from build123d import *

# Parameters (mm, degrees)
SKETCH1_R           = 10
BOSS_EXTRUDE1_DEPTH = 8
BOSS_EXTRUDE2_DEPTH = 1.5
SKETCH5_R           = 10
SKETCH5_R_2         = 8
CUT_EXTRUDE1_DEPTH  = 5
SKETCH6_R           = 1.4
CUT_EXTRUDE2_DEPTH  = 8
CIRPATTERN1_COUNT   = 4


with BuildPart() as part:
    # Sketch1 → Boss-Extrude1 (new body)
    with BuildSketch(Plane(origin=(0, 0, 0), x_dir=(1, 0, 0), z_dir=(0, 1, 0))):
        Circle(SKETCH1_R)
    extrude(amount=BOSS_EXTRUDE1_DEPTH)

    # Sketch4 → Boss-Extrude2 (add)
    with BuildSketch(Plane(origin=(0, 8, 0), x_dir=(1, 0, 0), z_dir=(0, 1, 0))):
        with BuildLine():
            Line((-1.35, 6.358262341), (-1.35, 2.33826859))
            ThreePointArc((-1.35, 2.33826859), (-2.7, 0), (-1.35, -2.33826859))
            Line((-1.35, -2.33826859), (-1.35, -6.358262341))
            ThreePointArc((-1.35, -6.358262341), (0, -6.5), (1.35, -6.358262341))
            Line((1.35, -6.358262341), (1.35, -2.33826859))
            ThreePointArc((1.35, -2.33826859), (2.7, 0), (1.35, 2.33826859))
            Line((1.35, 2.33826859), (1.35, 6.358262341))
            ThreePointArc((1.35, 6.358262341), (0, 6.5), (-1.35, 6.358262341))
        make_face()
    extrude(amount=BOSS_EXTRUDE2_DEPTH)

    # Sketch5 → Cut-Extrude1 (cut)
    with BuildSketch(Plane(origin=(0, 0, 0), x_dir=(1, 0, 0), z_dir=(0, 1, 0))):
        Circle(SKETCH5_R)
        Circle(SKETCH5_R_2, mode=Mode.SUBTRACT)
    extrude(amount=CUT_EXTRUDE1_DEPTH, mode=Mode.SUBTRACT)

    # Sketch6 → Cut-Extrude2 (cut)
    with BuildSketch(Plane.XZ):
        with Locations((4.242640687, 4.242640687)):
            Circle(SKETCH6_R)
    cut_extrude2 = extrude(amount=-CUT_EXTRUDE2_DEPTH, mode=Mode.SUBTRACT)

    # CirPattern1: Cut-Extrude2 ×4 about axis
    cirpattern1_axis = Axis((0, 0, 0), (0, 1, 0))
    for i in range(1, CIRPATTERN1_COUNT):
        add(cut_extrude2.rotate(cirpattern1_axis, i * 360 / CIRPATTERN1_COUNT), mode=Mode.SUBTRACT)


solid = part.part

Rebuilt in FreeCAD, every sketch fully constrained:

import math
import FreeCAD as App
import Part
import Sketcher

V = App.Vector

doc = App.newDocument("Part")
body = doc.addObject("PartDesign::Body", "Body")

# Sketch on XZ plane
sketch1 = body.newObject("Sketcher::SketchObject", "Sketch")
sketch1.AttachmentSupport = (doc.getObject("XZ_Plane"), [""])
sketch1.MapMode = "FlatFace"
sketch1.addGeometry(Part.Circle(V(0, 0, 0), V(0, 0, 1), 10), False)
sketch1.addConstraint(Sketcher.Constraint("Coincident", 0, 3, -1, 1))
sketch1.addConstraint(Sketcher.Constraint("Diameter", 0, 20.0))
pad1 = body.newObject("PartDesign::Pad", "Pad")
pad1.Profile = sketch1
pad1.Length = 8
pad1.Reversed = True

# Sketch on XZ plane
sketch2 = body.newObject("Sketcher::SketchObject", "Sketch001")
sketch2.AttachmentSupport = (doc.getObject("XZ_Plane"), [""])
sketch2.MapMode = "FlatFace"
sketch2.AttachmentOffset = App.Placement(V(0, 0, -8), App.Rotation())
sketch2.addGeometry(Part.LineSegment(V(-1.35, -6.358262, 0), V(-1.35, -2.338269, 0)), False)
sketch2.addGeometry(Part.ArcOfCircle(Part.Circle(V(0, 0, 0), V(0, 0, 1), 2.7), math.radians(120), math.radians(240)), False)
sketch2.addGeometry(Part.LineSegment(V(-1.35, 2.338269, 0), V(-1.35, 6.358262, 0)), False)
sketch2.addGeometry(Part.ArcOfCircle(Part.Circle(V(0, 0, 0), V(0, 0, 1), 6.5), math.radians(78.01285), math.radians(101.98715)), False)
sketch2.addGeometry(Part.LineSegment(V(1.35, 6.358262, 0), V(1.35, 2.338269, 0)), False)
sketch2.addGeometry(Part.ArcOfCircle(Part.Circle(V(0, 0, 0), V(0, 0, 1), 2.7), math.radians(-60), math.radians(60)), False)
sketch2.addGeometry(Part.LineSegment(V(1.35, -2.338269, 0), V(1.35, -6.358262, 0)), False)
sketch2.addGeometry(Part.ArcOfCircle(Part.Circle(V(0, 0, 0), V(0, 0, 1), 6.5), math.radians(-101.98715), math.radians(-78.01285)), False)
sketch2.addConstraint(Sketcher.Constraint("Coincident", 0, 2, 1, 2))
sketch2.addConstraint(Sketcher.Constraint("Coincident", 1, 1, 2, 1))
sketch2.addConstraint(Sketcher.Constraint("Coincident", 2, 2, 3, 2))
sketch2.addConstraint(Sketcher.Constraint("Coincident", 3, 1, 4, 1))
sketch2.addConstraint(Sketcher.Constraint("Coincident", 4, 2, 5, 2))
sketch2.addConstraint(Sketcher.Constraint("Coincident", 5, 1, 6, 1))
sketch2.addConstraint(Sketcher.Constraint("Coincident", 6, 2, 7, 2))
sketch2.addConstraint(Sketcher.Constraint("Coincident", 7, 1, 0, 1))
sketch2.addConstraint(Sketcher.Constraint("Vertical", 0))
sketch2.addConstraint(Sketcher.Constraint("Vertical", 2))
sketch2.addConstraint(Sketcher.Constraint("Vertical", 4))
sketch2.addConstraint(Sketcher.Constraint("Vertical", 6))
sketch2.addConstraint(Sketcher.Constraint("Coincident", 1, 3, -1, 1))
sketch2.addConstraint(Sketcher.Constraint("Coincident", 3, 3, -1, 1))
sketch2.addConstraint(Sketcher.Constraint("Coincident", 5, 3, -1, 1))
sketch2.addConstraint(Sketcher.Constraint("Coincident", 7, 3, -1, 1))
sketch2.addConstraint(Sketcher.Constraint("Equal", 1, 5))
sketch2.addConstraint(Sketcher.Constraint("Equal", 3, 7))
sketch2.addConstraint(Sketcher.Constraint("Horizontal", 2, 2, 3, 1))
sketch2.addConstraint(Sketcher.Constraint("Horizontal", 0, 2, 5, 1))
sketch2.addConstraint(Sketcher.Constraint("Vertical", 0, 2, 1, 1))
sketch2.addConstraint(Sketcher.Constraint("Radius", 1, 2.7))
sketch2.addConstraint(Sketcher.Constraint("Radius", 3, 6.5))
sketch2.addConstraint(Sketcher.Constraint("DistanceX", 2, 2, 3, 1, 2.7))
pad2 = body.newObject("PartDesign::Pad", "Pad001")
pad2.Profile = sketch2
pad2.Length = 1.5
pad2.Reversed = True

# Sketch on XZ plane
sketch3 = body.newObject("Sketcher::SketchObject", "Sketch002")
sketch3.AttachmentSupport = (doc.getObject("XZ_Plane"), [""])
sketch3.MapMode = "FlatFace"
sketch3.addGeometry(Part.Circle(V(0, 0, 0), V(0, 0, 1), 10), False)
sketch3.addGeometry(Part.Circle(V(0, 0, 0), V(0, 0, 1), 8), False)
sketch3.addConstraint(Sketcher.Constraint("Coincident", 0, 3, -1, 1))
sketch3.addConstraint(Sketcher.Constraint("Coincident", 1, 3, -1, 1))
sketch3.addConstraint(Sketcher.Constraint("Diameter", 0, 20.0))
sketch3.addConstraint(Sketcher.Constraint("Diameter", 1, 16.0))
pocket1 = body.newObject("PartDesign::Pocket", "Pocket")
pocket1.Profile = sketch3
pocket1.Length = 5

# Sketch on XZ plane
sketch4 = body.newObject("Sketcher::SketchObject", "Sketch003")
sketch4.AttachmentSupport = (doc.getObject("XZ_Plane"), [""])
sketch4.MapMode = "FlatFace"
sketch4.addGeometry(Part.Circle(V(4.242641, 4.242641, 0), V(0, 0, 1), 1.4), False)
sketch4.addConstraint(Sketcher.Constraint("Diameter", 0, 2.8))
sketch4.addConstraint(Sketcher.Constraint("DistanceX", -1, 1, 0, 3, 4.242641))
sketch4.addConstraint(Sketcher.Constraint("DistanceY", -1, 1, 0, 3, 4.242641))
pocket2 = body.newObject("PartDesign::Pocket", "Pocket001")
pocket2.Profile = sketch4
pocket2.Length = 8
doc.recompute()

polarpattern = body.newObject("PartDesign::PolarPattern", "PolarPattern")
polarpattern.Originals = [pocket2]
polarpattern.Axis = (doc.getObject("Y_Axis"), [""])
polarpattern.Angle = 360
polarpattern.Occurrences = 4
body.Tip = polarpattern

doc.recompute()
